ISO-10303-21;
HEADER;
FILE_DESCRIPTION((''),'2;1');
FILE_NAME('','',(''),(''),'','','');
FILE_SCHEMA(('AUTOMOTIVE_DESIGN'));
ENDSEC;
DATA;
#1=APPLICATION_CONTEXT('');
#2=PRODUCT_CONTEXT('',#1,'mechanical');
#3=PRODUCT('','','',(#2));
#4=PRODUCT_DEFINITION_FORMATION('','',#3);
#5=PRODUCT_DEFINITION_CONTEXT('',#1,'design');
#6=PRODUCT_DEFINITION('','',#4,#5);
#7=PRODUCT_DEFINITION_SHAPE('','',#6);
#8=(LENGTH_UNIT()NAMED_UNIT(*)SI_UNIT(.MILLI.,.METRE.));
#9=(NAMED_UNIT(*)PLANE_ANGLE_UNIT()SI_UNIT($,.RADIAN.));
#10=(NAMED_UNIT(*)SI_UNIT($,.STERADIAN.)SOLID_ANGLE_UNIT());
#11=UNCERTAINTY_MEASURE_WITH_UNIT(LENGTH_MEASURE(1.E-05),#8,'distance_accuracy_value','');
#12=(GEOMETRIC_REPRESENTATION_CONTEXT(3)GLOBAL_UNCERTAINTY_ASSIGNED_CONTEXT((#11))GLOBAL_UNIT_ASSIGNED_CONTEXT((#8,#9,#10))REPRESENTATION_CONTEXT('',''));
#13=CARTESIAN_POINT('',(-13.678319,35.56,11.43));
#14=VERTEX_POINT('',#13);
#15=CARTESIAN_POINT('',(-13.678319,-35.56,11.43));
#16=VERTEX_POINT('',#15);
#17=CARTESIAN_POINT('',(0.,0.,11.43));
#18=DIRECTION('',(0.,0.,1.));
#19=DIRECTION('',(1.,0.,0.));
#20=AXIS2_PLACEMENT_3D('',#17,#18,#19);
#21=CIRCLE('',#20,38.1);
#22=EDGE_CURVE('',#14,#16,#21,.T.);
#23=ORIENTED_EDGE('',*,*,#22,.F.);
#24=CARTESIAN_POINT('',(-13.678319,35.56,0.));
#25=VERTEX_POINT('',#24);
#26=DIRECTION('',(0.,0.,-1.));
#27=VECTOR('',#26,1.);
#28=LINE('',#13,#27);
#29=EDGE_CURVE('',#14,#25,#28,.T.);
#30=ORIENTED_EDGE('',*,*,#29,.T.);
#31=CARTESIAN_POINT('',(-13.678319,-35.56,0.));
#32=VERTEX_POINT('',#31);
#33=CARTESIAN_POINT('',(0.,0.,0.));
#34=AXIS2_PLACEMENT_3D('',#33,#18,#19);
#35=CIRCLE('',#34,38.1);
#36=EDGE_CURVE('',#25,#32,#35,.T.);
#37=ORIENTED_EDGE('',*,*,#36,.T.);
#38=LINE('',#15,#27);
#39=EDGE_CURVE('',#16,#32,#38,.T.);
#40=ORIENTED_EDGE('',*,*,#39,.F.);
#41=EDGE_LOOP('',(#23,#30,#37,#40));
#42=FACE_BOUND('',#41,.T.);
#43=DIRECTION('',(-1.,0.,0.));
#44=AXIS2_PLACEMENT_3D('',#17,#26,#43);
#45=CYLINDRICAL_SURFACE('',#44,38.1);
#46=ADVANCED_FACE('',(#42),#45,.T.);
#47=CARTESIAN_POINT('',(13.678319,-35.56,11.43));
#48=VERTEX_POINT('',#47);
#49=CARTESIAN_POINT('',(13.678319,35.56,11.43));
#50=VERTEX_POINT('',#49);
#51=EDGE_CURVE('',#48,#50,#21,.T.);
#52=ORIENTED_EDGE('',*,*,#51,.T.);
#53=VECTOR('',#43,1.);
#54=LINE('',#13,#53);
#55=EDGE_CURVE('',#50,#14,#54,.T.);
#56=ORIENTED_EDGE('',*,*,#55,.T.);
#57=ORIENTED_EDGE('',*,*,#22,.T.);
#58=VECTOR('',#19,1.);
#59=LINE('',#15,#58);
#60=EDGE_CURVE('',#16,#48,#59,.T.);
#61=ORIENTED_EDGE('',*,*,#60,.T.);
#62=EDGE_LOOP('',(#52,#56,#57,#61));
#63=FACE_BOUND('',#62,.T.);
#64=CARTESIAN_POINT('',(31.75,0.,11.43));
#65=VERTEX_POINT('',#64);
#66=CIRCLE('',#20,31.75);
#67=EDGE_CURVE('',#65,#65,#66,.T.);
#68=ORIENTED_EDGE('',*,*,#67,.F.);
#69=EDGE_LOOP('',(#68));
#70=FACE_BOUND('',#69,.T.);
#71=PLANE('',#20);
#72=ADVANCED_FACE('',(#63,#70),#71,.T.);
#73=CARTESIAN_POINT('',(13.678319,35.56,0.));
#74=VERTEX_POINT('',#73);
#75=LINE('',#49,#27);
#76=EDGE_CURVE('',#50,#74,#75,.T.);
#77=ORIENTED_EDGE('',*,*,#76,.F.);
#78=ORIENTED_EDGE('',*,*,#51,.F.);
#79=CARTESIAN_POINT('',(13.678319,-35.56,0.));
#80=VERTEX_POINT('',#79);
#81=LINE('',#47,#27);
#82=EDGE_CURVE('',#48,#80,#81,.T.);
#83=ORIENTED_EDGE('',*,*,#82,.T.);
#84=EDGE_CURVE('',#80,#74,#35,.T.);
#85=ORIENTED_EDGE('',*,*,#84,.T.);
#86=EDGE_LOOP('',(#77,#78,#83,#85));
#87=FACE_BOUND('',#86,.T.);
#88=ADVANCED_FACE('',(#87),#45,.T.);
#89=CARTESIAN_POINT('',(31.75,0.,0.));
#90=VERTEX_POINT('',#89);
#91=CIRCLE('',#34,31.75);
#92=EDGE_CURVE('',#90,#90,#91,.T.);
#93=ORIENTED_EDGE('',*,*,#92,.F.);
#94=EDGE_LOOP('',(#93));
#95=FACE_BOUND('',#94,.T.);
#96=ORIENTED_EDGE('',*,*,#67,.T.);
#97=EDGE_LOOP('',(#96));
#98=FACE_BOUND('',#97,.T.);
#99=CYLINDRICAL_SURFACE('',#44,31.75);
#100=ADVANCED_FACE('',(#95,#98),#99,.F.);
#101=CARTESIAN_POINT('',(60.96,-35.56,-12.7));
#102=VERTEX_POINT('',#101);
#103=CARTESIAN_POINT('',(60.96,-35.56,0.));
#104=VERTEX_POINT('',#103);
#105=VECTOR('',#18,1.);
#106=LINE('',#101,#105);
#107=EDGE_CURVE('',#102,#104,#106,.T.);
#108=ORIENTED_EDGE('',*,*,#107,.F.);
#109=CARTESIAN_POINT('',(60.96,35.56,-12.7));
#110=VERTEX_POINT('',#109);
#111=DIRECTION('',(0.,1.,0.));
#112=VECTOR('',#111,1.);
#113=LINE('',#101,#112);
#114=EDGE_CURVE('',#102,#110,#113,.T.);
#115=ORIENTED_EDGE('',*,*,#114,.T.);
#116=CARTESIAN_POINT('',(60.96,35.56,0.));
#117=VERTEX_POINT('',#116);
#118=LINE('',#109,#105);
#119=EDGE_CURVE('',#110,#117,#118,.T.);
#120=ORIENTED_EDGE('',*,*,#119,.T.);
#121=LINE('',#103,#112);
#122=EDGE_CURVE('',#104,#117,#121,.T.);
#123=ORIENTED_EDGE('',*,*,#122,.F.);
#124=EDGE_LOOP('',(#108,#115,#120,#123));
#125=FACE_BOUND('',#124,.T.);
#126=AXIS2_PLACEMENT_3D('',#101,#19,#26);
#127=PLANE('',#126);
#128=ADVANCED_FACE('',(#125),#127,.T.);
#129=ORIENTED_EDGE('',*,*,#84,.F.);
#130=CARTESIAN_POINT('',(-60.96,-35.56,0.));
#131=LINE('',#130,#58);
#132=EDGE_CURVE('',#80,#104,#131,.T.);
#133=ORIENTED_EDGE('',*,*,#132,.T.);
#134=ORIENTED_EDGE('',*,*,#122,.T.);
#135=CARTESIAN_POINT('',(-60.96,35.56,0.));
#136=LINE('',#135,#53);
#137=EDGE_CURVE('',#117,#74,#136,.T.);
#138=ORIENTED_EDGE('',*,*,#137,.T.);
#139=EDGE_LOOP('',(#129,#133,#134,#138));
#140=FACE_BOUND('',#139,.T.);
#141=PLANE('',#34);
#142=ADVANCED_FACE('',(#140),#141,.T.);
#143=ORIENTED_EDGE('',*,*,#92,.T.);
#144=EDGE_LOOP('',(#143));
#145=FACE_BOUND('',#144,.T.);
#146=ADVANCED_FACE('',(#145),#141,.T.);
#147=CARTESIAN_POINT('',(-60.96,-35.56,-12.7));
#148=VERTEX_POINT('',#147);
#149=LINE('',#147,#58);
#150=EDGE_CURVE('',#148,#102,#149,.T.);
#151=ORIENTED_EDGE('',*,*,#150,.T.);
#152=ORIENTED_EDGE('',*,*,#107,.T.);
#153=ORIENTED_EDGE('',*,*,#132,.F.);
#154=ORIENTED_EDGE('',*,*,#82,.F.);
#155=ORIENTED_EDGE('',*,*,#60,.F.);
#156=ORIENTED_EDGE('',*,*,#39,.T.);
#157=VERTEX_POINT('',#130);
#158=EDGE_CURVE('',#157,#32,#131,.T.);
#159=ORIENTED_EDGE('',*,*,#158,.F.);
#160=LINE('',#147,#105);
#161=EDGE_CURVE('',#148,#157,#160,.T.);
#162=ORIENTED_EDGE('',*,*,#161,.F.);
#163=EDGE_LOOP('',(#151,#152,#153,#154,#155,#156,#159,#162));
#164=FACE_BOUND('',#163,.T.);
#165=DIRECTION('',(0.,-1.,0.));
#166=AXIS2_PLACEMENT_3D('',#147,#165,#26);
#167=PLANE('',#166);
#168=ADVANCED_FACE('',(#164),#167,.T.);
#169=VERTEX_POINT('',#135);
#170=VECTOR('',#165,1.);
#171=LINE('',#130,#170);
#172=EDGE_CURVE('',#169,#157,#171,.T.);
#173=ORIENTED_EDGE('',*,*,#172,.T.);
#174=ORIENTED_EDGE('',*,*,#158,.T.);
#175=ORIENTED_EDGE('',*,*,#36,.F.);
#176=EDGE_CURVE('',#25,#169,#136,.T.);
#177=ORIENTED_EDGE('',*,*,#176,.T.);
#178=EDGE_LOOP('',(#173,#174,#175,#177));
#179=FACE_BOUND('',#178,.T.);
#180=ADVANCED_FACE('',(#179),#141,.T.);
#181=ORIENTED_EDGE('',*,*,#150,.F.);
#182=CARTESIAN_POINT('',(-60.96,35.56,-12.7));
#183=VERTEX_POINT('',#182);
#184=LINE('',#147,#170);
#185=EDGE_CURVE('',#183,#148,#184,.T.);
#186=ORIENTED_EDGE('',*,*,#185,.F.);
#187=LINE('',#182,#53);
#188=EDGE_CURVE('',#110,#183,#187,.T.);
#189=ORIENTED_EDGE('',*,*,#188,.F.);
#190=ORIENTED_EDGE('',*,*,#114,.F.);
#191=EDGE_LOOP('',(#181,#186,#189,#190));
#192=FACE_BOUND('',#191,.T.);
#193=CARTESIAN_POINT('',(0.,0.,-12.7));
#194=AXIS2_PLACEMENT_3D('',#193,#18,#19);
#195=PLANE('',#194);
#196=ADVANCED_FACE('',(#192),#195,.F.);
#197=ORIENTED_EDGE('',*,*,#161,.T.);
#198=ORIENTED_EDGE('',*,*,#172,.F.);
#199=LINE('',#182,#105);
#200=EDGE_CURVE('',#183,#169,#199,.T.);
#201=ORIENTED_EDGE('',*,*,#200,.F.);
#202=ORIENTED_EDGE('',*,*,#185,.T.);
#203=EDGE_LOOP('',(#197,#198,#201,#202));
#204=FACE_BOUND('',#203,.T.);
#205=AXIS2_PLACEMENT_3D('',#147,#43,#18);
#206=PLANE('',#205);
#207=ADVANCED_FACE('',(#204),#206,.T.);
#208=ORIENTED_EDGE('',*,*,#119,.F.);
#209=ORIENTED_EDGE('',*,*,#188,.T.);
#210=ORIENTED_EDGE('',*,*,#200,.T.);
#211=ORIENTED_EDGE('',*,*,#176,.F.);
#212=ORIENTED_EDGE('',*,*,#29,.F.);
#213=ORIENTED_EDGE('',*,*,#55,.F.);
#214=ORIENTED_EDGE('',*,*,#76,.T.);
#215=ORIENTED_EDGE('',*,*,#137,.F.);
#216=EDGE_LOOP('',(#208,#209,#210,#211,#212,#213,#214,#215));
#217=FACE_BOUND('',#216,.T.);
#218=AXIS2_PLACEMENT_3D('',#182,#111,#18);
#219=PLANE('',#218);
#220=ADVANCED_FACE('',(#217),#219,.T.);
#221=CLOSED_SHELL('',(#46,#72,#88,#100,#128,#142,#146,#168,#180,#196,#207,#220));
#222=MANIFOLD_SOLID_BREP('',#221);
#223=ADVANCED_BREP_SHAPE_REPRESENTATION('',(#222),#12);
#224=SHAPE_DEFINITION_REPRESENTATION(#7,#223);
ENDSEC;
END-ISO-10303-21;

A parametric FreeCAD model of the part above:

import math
import FreeCAD as App
import Part
import Sketcher
from FreeCAD import Vector
Q = App.Units.Quantity

doc = App.newDocument("Part")
params = doc.addObject("Spreadsheet::Sheet", "Params")
for row, (alias, value) in enumerate([
    ("sketch1_width", "4.8 in"),
    ("sketch1_height", "2.8 in"),
    ("pad1_length", "0.5 in"),
    ("sketch2_diameter", "2.5 in"),
    ("sketch2_radius", "1.5 in"),
    ("pad2_length", "0.45 in"),
], start=1):
    params.set(f"A{row}", alias)
    params.set(f"B{row}", "=" + value)
    params.setAlias(f"B{row}", alias)

body = doc.addObject("PartDesign::Body", "Body")

# Sketch on XY plane
sketch1 = body.newObject("Sketcher::SketchObject", "Sketch")
sketch1.AttachmentSupport = (doc.getObject("XY_Plane"), [""])
sketch1.MapMode = "FlatFace"
sketch1.addGeometry([
    Part.LineSegment(Vector(-61, 36, 0), Vector(-61, -36, 0)),
    Part.LineSegment(Vector(-61, -36, 0), Vector(61, -36, 0)),
    Part.LineSegment(Vector(61, -36, 0), Vector(61, 36, 0)),
    Part.LineSegment(Vector(61, 36, 0), Vector(-61, 36, 0)),
], False)
sketch1.addConstraint([
    Sketcher.Constraint("Coincident", 0, 2, 1, 1),
    Sketcher.Constraint("Coincident", 1, 2, 2, 1),
    Sketcher.Constraint("Coincident", 2, 2, 3, 1),
    Sketcher.Constraint("Coincident", 3, 2, 0, 1),
    Sketcher.Constraint("Vertical", 0),
    Sketcher.Constraint("Horizontal", 1),
    Sketcher.Constraint("Vertical", 2),
    Sketcher.Constraint("Horizontal", 3),
    Sketcher.Constraint("Symmetric", 0, 2, 2, 2, -1, 1),
    Sketcher.Constraint("DistanceX", 1, 1, 1, 2, Q("4.8 in")),
    Sketcher.Constraint("DistanceY", 0, 2, 0, 1, Q("2.8 in")),
])
sketch1.setExpression("Constraints[9]", "Params.sketch1_width")
sketch1.setExpression("Constraints[10]", "Params.sketch1_height")
pad1 = body.newObject("PartDesign::Pad", "Pad")
pad1.Profile = sketch1
pad1.setExpression("Length", "Params.pad1_length")
pad1.Reversed = True

# Sketch on XY plane
sketch2 = body.newObject("Sketcher::SketchObject", "Sketch001")
sketch2.AttachmentSupport = (doc.getObject("XY_Plane"), [""])
sketch2.MapMode = "FlatFace"
sketch2.addGeometry([
    Part.LineSegment(Vector(14, 36, 0), Vector(-14, 36, 0)),  # 0
    Part.ArcOfCircle(Part.Circle(Vector(0, 0, 0), Vector(0, 0, 1), 38), math.radians(111), math.radians(249)),  # 1
    Part.LineSegment(Vector(-14, -36, 0), Vector(14, -36, 0)),  # 2
    Part.ArcOfCircle(Part.Circle(Vector(0, 0, 0), Vector(0, 0, 1), 38), math.radians(-69), math.radians(69)),  # 3
    Part.Circle(Vector(0, 0, 0), Vector(0, 0, 1), 32),  # 4
], False)
sketch2.addConstraint([
    Sketcher.Constraint("Coincident", 0, 2, 1, 1),
    Sketcher.Constraint("Coincident", 1, 2, 2, 1),
    Sketcher.Constraint("Coincident", 2, 2, 3, 1),
    Sketcher.Constraint("Coincident", 3, 2, 0, 1),
    Sketcher.Constraint("Horizontal", 0),
    Sketcher.Constraint("Horizontal", 2),
    Sketcher.Constraint("Coincident", 1, 3, -1, 1),
    Sketcher.Constraint("Coincident", 3, 3, -1, 1),
    Sketcher.Constraint("Coincident", 4, 3, -1, 1),
    Sketcher.Constraint("Equal", 1, 3),
    Sketcher.Constraint("Vertical", 0, 2, 1, 2),
    Sketcher.Constraint("Diameter", 4, Q("2.5 in")),
    Sketcher.Constraint("Radius", 1, Q("1.5 in")),
    Sketcher.Constraint("DistanceY", -1, 1, 0, 2, Q("1.4 in")),
])
sketch2.setExpression("Constraints[11]", "Params.sketch2_diameter")
sketch2.setExpression("Constraints[12]", "Params.sketch2_radius")
pad2 = body.newObject("PartDesign::Pad", "Pad001")
pad2.Profile = sketch2
pad2.setExpression("Length", "Params.pad2_length")

doc.recompute()
